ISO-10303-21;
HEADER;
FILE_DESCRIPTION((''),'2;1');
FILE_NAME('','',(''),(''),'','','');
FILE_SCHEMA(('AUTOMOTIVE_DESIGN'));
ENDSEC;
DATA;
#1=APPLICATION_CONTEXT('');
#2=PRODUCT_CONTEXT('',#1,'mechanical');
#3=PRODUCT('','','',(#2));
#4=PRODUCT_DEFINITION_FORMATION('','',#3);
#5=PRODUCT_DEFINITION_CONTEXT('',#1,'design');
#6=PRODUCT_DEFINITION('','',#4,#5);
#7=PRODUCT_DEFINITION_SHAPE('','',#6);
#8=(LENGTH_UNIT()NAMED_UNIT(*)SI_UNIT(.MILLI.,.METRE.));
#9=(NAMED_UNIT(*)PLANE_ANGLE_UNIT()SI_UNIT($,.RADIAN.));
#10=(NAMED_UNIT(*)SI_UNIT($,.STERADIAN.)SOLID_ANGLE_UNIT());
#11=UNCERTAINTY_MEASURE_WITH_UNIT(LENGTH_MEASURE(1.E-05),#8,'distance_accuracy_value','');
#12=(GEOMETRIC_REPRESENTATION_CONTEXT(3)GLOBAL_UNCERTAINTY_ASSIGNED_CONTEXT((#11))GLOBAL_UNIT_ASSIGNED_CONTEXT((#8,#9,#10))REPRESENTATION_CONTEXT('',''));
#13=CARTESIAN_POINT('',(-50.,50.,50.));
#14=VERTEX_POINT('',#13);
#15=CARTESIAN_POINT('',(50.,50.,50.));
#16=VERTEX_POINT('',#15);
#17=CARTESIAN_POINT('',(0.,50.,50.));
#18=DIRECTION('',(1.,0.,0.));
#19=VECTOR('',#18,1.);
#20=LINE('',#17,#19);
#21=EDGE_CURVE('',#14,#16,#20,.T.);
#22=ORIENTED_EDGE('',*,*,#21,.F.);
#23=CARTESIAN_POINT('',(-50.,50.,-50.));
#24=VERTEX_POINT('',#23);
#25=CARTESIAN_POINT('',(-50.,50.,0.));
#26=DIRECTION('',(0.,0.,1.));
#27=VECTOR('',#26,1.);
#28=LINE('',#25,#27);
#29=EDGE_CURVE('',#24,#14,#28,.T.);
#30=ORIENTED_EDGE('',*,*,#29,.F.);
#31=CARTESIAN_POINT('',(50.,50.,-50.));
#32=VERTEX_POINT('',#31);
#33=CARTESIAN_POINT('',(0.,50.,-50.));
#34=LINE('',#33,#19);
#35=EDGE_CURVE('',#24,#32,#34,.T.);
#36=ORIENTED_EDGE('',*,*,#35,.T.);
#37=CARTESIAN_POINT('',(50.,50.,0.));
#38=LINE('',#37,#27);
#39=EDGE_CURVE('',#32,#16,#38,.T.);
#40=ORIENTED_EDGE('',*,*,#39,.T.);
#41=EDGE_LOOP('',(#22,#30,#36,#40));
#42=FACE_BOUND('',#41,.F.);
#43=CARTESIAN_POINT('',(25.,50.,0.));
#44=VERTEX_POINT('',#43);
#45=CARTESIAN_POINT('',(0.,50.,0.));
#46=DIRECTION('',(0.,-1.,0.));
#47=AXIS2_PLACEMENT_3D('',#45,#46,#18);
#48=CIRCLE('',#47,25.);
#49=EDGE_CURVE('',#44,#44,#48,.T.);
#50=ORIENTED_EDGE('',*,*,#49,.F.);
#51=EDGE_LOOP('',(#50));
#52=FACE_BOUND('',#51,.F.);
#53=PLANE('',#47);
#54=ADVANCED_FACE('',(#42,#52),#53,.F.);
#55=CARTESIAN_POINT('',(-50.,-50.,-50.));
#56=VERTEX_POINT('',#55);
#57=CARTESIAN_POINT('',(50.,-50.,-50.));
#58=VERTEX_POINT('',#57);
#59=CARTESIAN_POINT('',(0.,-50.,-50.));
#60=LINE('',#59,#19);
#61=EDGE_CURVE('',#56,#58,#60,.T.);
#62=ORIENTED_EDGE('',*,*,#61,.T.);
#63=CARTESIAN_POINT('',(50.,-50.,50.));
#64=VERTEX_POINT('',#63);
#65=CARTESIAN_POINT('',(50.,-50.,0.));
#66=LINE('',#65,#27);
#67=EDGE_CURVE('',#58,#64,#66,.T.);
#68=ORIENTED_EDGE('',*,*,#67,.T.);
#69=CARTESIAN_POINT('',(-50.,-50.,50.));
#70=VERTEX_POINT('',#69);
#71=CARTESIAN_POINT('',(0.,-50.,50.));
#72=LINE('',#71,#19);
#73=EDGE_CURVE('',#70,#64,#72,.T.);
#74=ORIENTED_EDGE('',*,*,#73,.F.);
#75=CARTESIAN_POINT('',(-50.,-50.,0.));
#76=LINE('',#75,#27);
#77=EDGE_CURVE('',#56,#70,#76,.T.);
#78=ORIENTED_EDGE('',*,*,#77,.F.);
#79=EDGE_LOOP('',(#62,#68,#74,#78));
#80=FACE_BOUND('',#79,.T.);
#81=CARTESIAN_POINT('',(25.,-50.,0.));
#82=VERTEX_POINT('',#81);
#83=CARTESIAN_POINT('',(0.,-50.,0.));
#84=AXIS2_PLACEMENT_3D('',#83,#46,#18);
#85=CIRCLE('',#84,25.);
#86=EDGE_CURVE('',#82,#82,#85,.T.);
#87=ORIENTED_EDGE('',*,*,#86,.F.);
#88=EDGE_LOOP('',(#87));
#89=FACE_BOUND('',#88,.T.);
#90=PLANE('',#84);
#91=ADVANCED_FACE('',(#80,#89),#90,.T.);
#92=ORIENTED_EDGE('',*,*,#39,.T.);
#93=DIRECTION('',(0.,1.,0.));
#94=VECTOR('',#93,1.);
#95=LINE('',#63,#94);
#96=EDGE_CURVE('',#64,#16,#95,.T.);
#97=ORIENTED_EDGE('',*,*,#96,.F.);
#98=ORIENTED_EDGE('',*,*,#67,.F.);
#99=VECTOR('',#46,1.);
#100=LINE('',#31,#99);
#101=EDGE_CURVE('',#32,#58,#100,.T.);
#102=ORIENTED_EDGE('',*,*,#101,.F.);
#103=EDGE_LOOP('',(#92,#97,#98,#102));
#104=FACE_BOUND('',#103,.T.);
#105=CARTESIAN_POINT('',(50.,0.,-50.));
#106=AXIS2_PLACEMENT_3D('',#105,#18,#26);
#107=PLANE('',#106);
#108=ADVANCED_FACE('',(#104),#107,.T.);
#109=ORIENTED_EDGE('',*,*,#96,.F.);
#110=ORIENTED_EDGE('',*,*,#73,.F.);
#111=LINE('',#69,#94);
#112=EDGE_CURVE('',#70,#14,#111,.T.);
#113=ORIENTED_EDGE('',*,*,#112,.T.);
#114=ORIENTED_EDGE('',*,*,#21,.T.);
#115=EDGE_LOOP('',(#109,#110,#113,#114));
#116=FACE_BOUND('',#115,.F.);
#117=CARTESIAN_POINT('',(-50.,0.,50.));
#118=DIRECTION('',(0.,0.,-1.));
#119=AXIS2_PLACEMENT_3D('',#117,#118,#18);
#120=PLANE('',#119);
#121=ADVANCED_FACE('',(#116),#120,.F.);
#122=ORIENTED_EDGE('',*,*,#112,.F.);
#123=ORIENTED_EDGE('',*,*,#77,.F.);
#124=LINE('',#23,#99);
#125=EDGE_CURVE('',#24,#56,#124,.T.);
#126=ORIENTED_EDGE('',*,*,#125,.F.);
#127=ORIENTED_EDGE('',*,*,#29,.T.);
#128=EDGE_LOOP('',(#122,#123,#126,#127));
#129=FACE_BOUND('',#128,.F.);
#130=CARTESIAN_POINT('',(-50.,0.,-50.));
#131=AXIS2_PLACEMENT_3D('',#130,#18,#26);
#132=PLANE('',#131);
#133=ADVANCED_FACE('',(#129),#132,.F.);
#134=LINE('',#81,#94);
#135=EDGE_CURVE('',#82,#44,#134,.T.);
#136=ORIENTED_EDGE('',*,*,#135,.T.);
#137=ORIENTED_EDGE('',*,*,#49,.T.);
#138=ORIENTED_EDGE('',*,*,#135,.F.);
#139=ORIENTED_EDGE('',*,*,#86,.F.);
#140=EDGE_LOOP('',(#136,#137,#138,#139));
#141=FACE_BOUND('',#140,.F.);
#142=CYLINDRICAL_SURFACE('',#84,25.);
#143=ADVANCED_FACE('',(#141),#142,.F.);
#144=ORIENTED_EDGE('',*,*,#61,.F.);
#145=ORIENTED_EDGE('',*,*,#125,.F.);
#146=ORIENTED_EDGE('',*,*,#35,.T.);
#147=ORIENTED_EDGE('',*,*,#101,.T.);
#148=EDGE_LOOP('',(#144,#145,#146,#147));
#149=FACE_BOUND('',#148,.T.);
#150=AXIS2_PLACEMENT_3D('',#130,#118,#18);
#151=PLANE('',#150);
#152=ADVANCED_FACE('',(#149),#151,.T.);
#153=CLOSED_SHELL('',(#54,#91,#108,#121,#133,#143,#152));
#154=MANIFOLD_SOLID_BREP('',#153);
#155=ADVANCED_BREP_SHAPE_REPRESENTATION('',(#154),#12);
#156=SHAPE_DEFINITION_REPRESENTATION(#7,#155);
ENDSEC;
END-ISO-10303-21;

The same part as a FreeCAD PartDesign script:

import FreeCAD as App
import Part
import Sketcher
from FreeCAD import Vector


def add_polygon(sketch, points):
    """Adds a closed chain of lines whose ends are joined by coincident constraints."""
    first, n = sketch.GeometryCount, len(points)
    for a, b in zip(points, points[1:] + points[:1]):
        sketch.addGeometry(Part.LineSegment(App.Vector(*a, 0), App.Vector(*b, 0)), False)
    for i in range(n):
        sketch.addConstraint(Sketcher.Constraint("Coincident", first + i, 2, first + (i + 1) % n, 1))

doc = App.newDocument("Part")
body = doc.addObject("PartDesign::Body", "Body")

sketch1 = body.newObject("Sketcher::SketchObject", "Sketch")
sketch1.AttachmentSupport = (doc.getObject("XZ_Plane"), [""])
sketch1.MapMode = "FlatFace"
add_polygon(sketch1, [(-50, 50), (-50, -50), (50, -50), (50, 50)])
sketch1.addConstraint(Sketcher.Constraint("Vertical", 0))
sketch1.addConstraint(Sketcher.Constraint("Horizontal", 1))
sketch1.addConstraint(Sketcher.Constraint("Vertical", 2))
sketch1.addConstraint(Sketcher.Constraint("Horizontal", 3))
sketch1.addConstraint(Sketcher.Constraint("Symmetric", 0, 2, 2, 2, -1, 1))
sketch1.addConstraint(Sketcher.Constraint("Equal", 3, 0))
sketch1.addConstraint(Sketcher.Constraint("DistanceX", 1, 1, 1, 2, 100.0))
pad1 = body.newObject("PartDesign::Pad", "Pad")
pad1.Profile = sketch1
pad1.Length = 100
pad1.Midplane = True

sketch2 = body.newObject("Sketcher::SketchObject", "Sketch001")
sketch2.AttachmentSupport = (doc.getObject("XZ_Plane"), [""])
sketch2.MapMode = "FlatFace"
sketch2.AttachmentOffset = App.Placement(Vector(0, 0, 50), App.Rotation())
sketch2.addGeometry(Part.Circle(Vector(0, 0, 0), Vector(0, 0, 1), 25), False)
sketch2.addConstraint(Sketcher.Constraint("Coincident", 0, 3, -1, 1))
sketch2.addConstraint(Sketcher.Constraint("Diameter", 0, 50.0))
pocket1 = body.newObject("PartDesign::Pocket", "Pocket")
pocket1.Profile = sketch2
pocket1.Type = "ThroughAll"

doc.recompute()
